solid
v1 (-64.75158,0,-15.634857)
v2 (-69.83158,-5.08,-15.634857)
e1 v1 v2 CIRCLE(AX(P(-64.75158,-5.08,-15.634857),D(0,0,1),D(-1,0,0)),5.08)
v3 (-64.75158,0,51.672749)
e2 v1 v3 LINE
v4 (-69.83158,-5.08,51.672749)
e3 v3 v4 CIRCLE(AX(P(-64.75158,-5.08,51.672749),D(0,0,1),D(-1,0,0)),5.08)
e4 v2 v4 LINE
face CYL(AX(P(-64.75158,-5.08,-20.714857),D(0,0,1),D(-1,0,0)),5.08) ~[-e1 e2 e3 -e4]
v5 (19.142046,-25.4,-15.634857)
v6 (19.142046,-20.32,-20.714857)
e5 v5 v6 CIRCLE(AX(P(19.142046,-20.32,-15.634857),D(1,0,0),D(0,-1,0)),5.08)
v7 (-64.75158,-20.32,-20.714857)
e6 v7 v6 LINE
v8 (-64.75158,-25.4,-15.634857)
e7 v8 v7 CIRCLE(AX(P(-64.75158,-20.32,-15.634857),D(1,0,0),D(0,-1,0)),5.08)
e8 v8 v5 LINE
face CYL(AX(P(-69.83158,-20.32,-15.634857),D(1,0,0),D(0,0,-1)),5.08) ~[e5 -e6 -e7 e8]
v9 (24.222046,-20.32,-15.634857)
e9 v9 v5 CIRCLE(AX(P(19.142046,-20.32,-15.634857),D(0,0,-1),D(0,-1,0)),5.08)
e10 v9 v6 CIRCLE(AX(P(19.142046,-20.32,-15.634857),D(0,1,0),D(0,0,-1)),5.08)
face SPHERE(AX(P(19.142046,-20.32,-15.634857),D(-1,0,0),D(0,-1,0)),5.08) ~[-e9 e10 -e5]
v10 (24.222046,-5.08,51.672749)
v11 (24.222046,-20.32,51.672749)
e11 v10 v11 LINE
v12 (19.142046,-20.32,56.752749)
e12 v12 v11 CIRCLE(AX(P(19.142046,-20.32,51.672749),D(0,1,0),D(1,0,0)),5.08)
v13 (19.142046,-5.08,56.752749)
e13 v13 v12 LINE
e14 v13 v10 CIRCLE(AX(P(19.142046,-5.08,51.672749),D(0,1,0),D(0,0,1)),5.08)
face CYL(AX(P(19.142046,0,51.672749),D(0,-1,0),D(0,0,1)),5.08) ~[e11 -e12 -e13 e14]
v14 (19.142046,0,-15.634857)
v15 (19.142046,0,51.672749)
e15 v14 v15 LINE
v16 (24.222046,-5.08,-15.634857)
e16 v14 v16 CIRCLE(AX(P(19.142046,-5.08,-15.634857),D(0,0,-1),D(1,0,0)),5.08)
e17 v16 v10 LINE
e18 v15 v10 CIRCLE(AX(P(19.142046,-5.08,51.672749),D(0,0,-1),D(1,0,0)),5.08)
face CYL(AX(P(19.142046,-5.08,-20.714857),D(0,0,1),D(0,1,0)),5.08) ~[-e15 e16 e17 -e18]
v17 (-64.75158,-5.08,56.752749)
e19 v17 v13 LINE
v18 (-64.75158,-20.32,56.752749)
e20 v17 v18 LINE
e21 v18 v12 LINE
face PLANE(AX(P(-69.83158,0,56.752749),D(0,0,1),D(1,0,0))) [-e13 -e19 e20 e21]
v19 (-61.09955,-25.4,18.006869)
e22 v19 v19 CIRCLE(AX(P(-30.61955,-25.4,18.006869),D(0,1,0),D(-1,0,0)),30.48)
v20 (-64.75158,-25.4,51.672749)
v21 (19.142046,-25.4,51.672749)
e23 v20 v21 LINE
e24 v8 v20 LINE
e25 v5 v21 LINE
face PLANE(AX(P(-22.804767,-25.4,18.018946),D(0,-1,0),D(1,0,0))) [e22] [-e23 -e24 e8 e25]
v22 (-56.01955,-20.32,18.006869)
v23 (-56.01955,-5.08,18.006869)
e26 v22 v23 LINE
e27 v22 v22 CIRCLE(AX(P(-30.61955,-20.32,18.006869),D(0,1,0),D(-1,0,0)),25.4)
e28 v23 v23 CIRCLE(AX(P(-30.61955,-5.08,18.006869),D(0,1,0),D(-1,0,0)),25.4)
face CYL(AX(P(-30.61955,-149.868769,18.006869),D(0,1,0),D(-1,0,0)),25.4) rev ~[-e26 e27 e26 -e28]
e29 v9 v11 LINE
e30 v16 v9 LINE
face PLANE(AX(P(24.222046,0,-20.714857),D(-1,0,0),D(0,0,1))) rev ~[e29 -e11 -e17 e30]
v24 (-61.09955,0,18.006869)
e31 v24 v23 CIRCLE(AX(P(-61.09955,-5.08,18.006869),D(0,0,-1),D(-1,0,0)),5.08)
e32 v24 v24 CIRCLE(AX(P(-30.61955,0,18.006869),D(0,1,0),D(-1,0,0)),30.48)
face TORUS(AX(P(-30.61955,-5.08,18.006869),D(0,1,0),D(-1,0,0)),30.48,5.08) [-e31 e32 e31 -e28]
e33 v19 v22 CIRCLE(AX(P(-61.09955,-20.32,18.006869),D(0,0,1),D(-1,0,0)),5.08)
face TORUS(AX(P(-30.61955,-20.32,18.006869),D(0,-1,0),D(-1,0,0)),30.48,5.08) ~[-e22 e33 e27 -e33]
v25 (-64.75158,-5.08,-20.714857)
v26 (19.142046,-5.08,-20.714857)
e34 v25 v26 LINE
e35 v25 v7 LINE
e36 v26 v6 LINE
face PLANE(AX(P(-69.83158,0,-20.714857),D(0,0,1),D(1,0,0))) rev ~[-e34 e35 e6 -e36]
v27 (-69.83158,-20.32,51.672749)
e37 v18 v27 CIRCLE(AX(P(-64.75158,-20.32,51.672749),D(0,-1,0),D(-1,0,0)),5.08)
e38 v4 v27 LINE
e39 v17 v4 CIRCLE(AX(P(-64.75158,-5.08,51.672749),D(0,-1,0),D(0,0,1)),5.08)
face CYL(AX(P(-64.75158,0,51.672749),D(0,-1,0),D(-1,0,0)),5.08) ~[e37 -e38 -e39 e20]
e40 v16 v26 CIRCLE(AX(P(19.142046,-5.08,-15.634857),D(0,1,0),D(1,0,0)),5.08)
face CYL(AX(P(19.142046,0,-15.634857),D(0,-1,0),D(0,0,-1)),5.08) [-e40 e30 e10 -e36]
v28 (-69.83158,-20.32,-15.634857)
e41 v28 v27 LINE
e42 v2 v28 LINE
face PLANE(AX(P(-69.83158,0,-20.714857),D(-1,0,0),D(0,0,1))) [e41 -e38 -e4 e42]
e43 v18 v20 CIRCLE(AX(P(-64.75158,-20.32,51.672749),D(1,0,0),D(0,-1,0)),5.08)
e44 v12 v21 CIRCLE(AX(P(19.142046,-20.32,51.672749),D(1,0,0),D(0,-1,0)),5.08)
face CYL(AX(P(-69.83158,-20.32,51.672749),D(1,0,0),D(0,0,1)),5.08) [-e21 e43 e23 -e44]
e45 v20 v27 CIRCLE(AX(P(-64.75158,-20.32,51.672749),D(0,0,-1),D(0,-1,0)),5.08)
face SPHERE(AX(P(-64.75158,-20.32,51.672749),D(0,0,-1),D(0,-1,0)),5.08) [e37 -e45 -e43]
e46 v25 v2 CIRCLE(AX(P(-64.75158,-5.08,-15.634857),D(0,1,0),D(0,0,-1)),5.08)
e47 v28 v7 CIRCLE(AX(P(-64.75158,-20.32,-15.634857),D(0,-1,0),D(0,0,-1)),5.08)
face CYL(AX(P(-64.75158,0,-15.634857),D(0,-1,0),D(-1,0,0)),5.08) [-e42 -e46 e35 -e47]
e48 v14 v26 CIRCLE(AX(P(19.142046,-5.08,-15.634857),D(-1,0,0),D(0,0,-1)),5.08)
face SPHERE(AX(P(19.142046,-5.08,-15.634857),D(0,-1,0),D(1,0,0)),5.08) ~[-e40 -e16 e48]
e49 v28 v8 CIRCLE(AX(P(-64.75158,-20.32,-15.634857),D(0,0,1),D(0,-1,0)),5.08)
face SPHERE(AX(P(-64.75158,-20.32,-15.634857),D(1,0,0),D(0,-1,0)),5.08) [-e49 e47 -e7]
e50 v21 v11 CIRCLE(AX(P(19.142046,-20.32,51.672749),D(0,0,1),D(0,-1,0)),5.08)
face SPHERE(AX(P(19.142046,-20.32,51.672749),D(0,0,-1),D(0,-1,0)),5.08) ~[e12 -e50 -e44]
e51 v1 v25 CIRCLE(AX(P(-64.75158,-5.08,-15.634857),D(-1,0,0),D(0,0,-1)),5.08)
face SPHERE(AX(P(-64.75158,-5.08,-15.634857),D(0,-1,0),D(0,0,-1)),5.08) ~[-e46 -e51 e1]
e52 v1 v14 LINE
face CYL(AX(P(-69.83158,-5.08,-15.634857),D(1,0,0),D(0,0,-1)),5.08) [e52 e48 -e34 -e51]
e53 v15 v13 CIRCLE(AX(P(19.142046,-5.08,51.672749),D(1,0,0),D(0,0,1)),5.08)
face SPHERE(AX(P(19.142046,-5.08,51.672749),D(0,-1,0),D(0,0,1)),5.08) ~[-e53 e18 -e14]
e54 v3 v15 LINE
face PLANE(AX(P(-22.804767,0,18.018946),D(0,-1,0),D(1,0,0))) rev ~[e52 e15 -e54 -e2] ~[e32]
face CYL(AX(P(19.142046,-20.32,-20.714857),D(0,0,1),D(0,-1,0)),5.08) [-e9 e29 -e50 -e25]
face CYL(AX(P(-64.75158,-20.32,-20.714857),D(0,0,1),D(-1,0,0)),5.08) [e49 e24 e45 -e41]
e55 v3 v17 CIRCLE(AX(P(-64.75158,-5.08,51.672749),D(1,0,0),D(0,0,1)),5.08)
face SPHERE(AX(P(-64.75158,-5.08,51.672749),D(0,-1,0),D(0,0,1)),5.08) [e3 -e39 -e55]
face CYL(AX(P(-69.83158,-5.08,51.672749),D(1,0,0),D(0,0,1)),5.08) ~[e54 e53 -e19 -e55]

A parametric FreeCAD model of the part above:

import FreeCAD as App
import Part
import Sketcher

V = App.Vector
Q = App.Units.Quantity

doc = App.newDocument("Part")
body = doc.addObject("PartDesign::Body", "Body")

# Sketch on XZ plane
sketch1 = body.newObject("Sketcher::SketchObject", "Sketch")
sketch1.AttachmentSupport = (doc.getObject("XZ_Plane"), [""])
sketch1.MapMode = "FlatFace"
sketch1.addGeometry(Part.LineSegment(V(-69.83158, 56.752749, 0), V(-69.83158, -20.714857, 0)), False)
sketch1.addGeometry(Part.LineSegment(V(-69.83158, -20.714857, 0), V(24.222046, -20.714857, 0)), False)
sketch1.addGeometry(Part.LineSegment(V(24.222046, -20.714857, 0), V(24.222046, 56.752749, 0)), False)
sketch1.addGeometry(Part.LineSegment(V(24.222046, 56.752749, 0), V(-69.83158, 56.752749, 0)), False)
sketch1.addConstraint(Sketcher.Constraint("Coincident", 0, 2, 1, 1))
sketch1.addConstraint(Sketcher.Constraint("Coincident", 1, 2, 2, 1))
sketch1.addConstraint(Sketcher.Constraint("Coincident", 2, 2, 3, 1))
sketch1.addConstraint(Sketcher.Constraint("Coincident", 3, 2, 0, 1))
sketch1.addConstraint(Sketcher.Constraint("Vertical", 0))
sketch1.addConstraint(Sketcher.Constraint("Horizontal", 1))
sketch1.addConstraint(Sketcher.Constraint("Vertical", 2))
sketch1.addConstraint(Sketcher.Constraint("Horizontal", 3))
sketch1.addConstraint(Sketcher.Constraint("DistanceX", 1, 1, 1, 2, 94.053626))
sketch1.addConstraint(Sketcher.Constraint("DistanceY", 0, 2, 0, 1, 77.467605))
sketch1.addConstraint(Sketcher.Constraint("DistanceX", 0, 2, -1, 1, 69.83158))
sketch1.addConstraint(Sketcher.Constraint("DistanceY", -1, 1, 2, 2, 56.752749))
pad1 = body.newObject("PartDesign::Pad", "Pad")
pad1.Profile = sketch1
pad1.Length = Q("1 in")

# Sketch on XZ plane
sketch2 = body.newObject("Sketcher::SketchObject", "Sketch001")
sketch2.AttachmentSupport = (doc.getObject("XZ_Plane"), [""])
sketch2.MapMode = "FlatFace"
sketch2.AttachmentOffset = App.Placement(V(0, 0, 1 * 25.4), App.Rotation())
sketch2.addGeometry(Part.Circle(V(-30.61955, 18.006869, 0), V(0, 0, 1), 25.4), False)
sketch2.addConstraint(Sketcher.Constraint("Diameter", 0, Q("2 in")))
sketch2.addConstraint(Sketcher.Constraint("DistanceX", 0, 3, -1, 1, 30.61955))
sketch2.addConstraint(Sketcher.Constraint("DistanceY", -1, 1, 0, 3, 18.006869))
doc.recompute()
hole = body.newObject("PartDesign::Hole", "Hole")
hole.Profile = sketch2
hole.ThreadType = "None"
hole.Diameter = Q("2 in")
hole.DepthType = "ThroughAll"
doc.recompute()

fillet = body.newObject("PartDesign::Fillet", "Fillet")
fillet.Base = (hole, ["Edge1"])
fillet.UseAllEdges = True
fillet.Radius = Q("0.2 in")

doc.recompute()
